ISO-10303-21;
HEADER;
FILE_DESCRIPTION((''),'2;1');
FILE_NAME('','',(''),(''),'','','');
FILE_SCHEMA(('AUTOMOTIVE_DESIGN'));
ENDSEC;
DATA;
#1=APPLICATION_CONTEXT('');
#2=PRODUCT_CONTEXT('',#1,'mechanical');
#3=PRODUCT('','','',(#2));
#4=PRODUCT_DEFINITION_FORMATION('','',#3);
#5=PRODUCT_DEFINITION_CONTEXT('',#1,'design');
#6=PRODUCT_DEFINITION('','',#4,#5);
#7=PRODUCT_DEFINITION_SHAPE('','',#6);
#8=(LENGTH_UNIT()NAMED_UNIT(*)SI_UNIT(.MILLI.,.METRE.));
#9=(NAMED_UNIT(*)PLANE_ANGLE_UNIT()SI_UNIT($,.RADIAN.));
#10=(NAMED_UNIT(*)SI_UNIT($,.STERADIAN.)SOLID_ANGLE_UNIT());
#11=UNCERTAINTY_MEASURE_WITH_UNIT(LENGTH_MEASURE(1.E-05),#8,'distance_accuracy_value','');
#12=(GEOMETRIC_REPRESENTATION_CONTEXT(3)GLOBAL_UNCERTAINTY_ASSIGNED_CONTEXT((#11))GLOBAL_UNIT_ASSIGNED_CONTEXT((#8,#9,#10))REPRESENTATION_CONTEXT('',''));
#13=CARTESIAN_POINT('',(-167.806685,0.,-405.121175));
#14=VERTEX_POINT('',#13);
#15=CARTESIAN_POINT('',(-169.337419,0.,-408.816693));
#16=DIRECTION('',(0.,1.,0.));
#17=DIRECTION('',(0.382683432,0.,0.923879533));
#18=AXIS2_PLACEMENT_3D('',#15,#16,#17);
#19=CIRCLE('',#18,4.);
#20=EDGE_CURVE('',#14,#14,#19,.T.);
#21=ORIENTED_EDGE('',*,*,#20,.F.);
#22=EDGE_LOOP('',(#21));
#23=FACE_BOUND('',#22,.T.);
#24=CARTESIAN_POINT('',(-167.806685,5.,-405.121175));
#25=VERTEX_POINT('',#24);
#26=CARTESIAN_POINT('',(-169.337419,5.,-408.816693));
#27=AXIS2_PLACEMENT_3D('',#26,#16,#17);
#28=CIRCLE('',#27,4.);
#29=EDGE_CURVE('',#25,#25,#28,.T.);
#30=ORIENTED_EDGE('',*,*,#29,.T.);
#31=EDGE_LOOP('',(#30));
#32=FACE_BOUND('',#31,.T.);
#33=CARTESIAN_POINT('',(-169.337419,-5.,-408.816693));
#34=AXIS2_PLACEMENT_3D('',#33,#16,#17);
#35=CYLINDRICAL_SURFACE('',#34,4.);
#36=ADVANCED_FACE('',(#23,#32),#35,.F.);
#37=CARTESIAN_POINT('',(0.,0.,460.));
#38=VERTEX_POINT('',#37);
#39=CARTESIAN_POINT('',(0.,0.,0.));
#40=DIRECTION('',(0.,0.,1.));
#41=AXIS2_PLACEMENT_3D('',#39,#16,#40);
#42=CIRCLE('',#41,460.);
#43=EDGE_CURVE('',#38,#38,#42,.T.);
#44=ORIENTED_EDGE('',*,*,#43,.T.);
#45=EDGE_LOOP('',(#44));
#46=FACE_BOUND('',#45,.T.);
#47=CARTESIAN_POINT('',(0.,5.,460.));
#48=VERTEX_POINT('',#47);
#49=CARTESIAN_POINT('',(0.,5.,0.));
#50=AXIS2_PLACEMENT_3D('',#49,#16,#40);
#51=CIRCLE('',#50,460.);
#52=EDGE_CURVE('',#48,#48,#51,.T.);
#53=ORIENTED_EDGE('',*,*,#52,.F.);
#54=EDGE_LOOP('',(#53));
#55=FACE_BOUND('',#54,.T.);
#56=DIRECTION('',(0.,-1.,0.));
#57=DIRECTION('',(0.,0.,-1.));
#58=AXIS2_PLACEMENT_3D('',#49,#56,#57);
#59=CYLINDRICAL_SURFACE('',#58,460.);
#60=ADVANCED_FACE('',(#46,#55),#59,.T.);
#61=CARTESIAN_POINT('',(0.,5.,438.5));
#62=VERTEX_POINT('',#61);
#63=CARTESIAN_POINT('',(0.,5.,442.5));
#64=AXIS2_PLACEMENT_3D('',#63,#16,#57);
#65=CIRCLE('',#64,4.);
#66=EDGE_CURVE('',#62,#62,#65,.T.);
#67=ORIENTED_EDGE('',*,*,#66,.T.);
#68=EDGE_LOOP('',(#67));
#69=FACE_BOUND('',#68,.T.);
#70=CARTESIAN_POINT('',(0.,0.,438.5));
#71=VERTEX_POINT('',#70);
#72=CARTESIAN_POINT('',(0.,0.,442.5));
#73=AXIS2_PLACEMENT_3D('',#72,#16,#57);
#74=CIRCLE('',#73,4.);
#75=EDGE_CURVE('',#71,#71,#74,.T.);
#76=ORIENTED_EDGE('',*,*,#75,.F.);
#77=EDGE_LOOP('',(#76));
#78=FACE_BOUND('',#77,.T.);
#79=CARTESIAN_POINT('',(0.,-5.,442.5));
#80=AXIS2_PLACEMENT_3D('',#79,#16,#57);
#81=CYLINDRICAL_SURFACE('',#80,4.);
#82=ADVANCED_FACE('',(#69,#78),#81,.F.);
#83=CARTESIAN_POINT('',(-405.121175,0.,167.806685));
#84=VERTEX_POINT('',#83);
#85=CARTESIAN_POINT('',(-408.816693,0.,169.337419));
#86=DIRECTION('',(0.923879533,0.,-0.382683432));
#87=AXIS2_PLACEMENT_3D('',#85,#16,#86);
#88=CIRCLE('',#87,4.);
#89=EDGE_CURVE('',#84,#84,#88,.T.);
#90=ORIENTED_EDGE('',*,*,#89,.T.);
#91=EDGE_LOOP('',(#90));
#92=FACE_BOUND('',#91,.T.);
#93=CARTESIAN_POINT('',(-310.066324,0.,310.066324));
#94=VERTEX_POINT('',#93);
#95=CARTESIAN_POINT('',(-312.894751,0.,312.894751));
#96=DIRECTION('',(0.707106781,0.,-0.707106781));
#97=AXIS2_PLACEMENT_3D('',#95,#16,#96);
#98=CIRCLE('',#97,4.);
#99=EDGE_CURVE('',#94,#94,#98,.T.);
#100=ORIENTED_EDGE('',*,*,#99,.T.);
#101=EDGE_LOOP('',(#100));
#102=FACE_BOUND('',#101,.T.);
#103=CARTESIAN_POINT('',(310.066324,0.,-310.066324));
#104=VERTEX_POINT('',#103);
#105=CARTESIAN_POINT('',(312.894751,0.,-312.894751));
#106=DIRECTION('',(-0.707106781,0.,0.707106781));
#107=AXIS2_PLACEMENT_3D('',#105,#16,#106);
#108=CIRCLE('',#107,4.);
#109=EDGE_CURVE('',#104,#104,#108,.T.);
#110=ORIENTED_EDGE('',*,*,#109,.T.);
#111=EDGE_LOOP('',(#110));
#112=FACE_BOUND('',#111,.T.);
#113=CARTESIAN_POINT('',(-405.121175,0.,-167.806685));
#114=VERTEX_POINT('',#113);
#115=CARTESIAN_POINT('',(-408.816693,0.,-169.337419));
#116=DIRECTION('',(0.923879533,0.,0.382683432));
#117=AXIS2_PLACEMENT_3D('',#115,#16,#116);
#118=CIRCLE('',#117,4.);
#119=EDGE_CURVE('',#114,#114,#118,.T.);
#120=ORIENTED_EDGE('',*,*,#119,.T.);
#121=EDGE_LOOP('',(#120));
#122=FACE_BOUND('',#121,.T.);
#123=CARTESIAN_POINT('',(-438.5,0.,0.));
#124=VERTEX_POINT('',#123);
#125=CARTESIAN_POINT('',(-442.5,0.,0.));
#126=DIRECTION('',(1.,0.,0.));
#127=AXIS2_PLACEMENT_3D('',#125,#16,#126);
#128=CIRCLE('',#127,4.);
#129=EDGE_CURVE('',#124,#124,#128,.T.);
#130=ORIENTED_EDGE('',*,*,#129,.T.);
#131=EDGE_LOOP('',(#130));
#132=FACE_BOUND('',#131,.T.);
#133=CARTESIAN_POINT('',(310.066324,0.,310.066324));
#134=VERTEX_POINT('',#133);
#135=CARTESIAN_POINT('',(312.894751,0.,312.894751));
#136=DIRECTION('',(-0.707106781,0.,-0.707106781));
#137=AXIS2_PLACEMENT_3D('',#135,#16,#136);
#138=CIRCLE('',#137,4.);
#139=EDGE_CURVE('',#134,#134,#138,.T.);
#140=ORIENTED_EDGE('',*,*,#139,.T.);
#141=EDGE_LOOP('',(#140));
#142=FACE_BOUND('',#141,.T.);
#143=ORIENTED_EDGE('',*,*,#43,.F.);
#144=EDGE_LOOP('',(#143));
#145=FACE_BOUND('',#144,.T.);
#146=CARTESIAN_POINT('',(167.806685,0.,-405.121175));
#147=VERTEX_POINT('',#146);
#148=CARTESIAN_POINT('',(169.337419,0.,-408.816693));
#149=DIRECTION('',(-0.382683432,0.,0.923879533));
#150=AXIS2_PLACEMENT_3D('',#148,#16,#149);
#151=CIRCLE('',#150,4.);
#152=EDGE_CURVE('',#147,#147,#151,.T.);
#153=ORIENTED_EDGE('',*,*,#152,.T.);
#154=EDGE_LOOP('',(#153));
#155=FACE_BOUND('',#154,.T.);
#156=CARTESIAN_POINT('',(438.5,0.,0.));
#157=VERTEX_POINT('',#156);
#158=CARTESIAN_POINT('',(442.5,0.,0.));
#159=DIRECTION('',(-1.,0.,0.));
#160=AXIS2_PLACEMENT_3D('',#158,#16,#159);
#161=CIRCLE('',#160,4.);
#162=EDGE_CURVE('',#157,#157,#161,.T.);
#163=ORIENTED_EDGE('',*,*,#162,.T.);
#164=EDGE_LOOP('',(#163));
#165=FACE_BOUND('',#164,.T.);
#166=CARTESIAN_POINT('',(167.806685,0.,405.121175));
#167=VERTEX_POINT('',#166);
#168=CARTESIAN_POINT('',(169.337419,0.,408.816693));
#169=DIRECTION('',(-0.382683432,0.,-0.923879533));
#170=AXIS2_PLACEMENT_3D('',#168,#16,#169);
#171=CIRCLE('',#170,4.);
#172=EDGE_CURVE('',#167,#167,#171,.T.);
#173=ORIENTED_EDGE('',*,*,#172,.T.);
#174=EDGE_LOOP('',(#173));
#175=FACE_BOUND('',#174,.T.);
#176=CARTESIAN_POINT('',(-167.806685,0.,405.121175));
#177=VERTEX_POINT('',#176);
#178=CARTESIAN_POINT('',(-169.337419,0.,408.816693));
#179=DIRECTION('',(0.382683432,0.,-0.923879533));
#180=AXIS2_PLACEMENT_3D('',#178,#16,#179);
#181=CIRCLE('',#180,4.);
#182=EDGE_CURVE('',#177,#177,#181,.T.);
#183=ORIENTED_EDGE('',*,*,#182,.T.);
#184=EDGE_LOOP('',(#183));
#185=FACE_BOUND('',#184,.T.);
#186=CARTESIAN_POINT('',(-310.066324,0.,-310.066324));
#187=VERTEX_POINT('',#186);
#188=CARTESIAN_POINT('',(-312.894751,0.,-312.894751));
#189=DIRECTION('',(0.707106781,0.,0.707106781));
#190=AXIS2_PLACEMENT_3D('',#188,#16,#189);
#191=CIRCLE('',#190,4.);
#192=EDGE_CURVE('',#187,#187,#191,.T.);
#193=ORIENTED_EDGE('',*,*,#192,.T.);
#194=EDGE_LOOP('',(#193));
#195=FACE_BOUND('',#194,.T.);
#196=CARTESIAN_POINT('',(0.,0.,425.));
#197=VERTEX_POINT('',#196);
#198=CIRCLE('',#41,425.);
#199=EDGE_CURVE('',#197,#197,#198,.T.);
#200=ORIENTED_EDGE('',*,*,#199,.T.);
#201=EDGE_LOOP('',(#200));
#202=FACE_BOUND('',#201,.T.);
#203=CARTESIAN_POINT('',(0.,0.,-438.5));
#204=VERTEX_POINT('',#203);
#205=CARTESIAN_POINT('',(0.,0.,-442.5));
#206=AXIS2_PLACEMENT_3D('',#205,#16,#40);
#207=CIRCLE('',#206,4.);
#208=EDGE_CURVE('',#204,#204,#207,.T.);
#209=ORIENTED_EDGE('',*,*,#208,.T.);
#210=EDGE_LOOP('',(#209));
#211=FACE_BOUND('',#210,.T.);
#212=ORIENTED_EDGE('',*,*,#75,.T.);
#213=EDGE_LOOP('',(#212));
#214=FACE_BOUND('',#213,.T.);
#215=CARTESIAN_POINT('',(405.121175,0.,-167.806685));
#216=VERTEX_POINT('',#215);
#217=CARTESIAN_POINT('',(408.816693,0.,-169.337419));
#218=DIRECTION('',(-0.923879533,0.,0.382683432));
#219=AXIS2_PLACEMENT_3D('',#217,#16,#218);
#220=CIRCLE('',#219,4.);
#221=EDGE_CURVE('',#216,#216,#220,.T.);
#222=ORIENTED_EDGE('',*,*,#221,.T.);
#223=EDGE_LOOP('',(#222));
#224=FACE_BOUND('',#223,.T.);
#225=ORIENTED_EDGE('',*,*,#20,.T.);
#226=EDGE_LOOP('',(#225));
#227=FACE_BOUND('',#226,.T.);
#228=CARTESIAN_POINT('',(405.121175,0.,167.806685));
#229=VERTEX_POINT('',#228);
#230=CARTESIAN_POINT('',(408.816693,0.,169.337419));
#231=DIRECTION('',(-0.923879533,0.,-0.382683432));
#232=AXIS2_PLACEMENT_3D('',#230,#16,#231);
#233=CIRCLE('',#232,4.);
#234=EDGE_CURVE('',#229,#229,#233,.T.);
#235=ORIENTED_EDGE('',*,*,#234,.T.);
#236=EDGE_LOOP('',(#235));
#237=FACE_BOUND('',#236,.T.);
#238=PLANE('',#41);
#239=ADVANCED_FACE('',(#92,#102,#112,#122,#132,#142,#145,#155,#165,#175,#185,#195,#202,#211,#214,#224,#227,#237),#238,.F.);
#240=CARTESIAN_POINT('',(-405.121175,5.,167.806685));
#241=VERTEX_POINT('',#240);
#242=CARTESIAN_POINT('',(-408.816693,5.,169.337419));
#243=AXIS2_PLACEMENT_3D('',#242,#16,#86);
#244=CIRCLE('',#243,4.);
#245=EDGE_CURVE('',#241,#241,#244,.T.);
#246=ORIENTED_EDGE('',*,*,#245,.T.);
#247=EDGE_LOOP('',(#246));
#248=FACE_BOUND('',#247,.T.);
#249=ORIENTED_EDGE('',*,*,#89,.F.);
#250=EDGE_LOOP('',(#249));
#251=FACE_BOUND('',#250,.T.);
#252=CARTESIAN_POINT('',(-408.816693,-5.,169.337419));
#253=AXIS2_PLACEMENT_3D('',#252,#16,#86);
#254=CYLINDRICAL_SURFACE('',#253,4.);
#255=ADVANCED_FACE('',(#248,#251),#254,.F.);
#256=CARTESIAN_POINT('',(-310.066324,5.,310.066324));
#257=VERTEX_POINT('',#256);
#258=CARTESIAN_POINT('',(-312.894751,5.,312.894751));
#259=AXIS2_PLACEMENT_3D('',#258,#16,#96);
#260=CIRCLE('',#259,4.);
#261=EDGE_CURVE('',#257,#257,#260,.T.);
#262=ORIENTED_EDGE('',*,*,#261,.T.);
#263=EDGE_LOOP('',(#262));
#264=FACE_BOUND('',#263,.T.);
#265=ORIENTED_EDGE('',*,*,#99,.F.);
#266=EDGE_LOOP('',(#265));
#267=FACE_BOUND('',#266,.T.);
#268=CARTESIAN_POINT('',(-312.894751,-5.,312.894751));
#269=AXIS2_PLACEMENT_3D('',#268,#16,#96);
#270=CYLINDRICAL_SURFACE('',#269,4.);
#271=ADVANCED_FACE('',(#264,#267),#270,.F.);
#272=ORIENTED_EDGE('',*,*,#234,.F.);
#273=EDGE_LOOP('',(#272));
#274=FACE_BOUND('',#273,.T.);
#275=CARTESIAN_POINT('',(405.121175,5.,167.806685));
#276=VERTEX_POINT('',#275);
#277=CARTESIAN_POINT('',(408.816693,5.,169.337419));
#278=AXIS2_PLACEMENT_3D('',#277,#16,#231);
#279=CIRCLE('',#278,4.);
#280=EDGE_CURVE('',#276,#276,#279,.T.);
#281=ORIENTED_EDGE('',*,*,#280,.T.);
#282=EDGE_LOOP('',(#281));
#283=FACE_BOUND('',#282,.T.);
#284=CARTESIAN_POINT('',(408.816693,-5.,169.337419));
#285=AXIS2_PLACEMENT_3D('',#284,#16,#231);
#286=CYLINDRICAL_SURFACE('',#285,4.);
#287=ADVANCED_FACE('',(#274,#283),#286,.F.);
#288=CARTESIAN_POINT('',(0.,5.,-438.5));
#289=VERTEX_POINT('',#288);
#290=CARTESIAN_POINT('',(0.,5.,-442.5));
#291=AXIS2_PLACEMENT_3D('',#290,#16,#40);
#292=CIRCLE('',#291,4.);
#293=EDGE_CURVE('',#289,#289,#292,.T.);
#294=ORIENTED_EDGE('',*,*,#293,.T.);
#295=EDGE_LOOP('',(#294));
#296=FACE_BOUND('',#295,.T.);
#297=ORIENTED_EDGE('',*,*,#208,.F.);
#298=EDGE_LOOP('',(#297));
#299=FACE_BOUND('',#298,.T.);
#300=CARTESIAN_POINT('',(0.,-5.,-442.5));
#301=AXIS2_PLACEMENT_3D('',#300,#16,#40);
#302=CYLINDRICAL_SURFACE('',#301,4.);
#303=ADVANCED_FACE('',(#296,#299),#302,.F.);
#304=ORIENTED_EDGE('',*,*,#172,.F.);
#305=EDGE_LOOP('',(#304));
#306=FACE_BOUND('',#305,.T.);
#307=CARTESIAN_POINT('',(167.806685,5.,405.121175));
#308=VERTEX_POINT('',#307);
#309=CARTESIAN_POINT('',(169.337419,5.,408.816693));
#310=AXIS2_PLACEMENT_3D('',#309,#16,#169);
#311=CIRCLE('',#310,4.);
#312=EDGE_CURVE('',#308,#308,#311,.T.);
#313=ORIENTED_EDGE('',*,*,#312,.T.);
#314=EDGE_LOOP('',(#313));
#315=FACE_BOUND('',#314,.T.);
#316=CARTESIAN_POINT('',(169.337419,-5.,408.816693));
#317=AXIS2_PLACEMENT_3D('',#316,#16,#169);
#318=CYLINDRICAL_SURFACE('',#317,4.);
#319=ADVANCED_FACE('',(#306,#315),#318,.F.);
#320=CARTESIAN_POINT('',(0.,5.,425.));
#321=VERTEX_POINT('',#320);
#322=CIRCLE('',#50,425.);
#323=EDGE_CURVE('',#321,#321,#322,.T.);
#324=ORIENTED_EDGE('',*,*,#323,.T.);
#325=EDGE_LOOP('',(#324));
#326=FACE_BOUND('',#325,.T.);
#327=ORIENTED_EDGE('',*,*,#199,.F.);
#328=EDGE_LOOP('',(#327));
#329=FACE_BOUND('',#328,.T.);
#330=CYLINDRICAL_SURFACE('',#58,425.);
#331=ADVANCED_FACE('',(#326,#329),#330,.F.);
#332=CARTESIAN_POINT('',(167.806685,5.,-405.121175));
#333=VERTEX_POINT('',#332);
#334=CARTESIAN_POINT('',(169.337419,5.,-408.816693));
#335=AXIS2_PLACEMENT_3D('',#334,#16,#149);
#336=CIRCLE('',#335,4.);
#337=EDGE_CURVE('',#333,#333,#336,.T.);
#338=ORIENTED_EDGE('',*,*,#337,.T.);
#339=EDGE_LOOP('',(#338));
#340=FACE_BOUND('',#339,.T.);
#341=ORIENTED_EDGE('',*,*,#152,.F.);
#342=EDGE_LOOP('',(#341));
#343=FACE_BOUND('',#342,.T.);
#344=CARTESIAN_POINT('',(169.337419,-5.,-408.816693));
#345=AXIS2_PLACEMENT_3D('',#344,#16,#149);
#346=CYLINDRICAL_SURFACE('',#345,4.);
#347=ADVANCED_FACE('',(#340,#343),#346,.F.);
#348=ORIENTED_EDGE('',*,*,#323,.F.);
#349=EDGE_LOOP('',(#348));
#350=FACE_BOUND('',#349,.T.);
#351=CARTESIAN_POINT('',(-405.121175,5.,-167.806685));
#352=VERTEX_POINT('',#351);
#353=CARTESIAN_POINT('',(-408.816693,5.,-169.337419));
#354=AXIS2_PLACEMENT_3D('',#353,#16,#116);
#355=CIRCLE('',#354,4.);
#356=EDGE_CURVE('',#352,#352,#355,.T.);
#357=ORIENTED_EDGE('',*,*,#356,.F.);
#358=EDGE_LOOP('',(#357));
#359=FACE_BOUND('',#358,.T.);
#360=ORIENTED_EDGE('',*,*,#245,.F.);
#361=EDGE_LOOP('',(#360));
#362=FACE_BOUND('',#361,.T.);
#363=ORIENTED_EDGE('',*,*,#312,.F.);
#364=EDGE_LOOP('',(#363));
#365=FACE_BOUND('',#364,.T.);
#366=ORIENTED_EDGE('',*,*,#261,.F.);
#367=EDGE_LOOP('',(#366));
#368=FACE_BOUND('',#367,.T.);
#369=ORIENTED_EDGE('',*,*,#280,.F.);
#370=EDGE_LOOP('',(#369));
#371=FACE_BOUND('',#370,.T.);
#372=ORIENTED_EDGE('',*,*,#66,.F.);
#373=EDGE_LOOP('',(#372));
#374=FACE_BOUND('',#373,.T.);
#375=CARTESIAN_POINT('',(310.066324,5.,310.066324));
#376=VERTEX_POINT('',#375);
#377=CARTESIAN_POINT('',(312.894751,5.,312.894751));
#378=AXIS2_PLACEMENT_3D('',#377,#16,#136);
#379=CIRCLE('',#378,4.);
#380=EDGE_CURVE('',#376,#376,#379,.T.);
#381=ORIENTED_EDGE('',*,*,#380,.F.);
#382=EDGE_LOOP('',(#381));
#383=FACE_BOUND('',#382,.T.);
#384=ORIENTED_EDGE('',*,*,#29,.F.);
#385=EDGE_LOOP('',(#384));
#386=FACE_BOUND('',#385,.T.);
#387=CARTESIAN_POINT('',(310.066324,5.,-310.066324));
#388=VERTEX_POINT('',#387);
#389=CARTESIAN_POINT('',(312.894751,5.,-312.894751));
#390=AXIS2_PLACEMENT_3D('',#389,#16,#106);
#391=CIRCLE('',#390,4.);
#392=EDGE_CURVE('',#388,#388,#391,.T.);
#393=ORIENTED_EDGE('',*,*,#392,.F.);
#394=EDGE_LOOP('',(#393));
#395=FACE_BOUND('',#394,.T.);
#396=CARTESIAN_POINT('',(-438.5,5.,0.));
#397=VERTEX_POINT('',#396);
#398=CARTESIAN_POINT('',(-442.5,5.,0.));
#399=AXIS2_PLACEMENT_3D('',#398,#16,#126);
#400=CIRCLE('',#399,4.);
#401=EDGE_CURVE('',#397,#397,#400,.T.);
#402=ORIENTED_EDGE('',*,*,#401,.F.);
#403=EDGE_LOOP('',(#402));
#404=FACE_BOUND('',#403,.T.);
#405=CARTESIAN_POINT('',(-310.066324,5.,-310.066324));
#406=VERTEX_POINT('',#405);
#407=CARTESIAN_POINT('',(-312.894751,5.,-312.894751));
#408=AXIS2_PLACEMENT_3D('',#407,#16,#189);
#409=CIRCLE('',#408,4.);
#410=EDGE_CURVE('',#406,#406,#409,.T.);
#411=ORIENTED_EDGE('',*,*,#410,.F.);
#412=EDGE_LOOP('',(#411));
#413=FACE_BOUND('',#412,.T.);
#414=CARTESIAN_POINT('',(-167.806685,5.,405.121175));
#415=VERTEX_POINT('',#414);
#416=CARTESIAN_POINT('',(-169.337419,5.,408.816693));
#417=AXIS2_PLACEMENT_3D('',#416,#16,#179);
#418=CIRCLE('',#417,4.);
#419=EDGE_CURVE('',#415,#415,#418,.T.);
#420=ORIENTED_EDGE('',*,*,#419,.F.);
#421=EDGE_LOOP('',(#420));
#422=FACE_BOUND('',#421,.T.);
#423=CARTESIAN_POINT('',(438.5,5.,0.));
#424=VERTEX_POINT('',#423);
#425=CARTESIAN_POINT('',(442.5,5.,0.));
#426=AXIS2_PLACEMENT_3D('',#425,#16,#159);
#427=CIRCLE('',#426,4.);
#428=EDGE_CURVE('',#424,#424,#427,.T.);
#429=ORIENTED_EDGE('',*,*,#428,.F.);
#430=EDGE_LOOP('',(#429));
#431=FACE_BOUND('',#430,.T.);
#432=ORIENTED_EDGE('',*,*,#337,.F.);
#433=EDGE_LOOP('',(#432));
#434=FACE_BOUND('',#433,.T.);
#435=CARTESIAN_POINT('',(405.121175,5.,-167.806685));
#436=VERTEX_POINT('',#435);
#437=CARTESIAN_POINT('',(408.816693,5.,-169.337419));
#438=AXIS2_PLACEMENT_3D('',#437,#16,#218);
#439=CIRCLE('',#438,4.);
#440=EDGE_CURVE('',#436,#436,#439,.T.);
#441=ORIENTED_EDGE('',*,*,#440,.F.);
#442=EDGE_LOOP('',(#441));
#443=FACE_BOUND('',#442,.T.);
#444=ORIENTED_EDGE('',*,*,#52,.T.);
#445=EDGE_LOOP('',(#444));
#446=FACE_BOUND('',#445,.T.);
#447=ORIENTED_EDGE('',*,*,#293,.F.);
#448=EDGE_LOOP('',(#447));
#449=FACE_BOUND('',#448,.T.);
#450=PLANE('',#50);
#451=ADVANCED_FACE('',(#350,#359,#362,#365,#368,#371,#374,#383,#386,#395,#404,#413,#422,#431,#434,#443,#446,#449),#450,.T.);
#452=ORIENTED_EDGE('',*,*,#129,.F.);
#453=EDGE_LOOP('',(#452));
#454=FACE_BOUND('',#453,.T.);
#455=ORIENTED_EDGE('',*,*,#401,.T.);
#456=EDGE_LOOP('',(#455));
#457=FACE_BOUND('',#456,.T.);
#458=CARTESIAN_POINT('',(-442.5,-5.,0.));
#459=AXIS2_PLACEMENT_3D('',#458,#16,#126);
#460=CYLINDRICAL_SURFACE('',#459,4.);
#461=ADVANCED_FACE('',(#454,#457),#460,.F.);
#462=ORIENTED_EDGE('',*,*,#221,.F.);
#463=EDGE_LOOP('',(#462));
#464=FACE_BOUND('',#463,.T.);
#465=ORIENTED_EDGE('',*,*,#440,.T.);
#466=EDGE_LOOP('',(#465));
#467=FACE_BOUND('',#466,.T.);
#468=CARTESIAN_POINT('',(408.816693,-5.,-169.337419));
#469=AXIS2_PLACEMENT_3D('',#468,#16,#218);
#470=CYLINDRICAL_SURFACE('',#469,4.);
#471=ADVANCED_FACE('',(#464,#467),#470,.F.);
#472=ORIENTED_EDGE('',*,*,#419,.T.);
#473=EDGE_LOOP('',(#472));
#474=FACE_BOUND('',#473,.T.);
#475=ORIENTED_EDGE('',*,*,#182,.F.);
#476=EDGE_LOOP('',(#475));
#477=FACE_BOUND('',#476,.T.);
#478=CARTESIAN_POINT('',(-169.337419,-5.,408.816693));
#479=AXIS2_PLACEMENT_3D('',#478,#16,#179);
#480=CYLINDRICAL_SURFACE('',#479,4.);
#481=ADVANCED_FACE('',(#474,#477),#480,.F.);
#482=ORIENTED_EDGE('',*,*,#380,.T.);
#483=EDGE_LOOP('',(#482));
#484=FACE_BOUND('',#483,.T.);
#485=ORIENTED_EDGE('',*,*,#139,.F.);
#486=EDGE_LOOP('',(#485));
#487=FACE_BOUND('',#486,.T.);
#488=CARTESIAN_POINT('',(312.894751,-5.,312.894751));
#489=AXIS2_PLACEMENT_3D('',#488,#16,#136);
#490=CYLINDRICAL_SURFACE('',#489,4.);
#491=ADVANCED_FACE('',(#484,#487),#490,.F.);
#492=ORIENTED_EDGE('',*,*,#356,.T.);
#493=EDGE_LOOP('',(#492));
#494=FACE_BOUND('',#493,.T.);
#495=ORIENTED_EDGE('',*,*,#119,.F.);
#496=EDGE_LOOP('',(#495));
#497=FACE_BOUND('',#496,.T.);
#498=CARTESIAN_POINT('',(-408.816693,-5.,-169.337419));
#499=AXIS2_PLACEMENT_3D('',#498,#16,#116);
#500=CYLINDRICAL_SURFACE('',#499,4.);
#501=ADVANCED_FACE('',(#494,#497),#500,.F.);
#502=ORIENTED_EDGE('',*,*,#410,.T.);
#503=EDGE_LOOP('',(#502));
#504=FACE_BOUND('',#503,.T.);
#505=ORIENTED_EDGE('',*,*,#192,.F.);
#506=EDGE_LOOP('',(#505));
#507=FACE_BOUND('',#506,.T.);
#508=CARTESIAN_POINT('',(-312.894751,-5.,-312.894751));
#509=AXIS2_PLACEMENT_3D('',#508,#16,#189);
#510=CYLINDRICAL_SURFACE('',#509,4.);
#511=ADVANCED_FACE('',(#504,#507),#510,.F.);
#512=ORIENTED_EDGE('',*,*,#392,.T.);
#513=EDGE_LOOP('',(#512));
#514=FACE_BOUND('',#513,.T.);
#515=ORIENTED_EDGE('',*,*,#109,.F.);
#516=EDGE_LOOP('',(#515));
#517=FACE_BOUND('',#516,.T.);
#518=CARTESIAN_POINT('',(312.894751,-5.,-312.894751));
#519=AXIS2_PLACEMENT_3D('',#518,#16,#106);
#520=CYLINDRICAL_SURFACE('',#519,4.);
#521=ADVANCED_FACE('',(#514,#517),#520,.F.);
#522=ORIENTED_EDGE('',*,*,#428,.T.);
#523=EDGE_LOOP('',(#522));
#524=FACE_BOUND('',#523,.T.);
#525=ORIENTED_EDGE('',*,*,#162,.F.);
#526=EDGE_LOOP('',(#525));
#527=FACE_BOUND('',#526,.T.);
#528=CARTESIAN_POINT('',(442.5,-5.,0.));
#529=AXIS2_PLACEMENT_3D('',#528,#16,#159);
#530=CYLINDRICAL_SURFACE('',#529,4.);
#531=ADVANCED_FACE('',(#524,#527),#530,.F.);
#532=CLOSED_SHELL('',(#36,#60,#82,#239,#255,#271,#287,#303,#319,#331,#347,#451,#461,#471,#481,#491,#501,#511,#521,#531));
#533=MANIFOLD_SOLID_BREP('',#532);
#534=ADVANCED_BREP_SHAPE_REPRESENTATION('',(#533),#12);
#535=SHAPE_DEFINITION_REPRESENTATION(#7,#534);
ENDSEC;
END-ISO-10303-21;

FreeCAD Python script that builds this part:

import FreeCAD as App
import Part
import Sketcher
from FreeCAD import Vector
Q = App.Units.Quantity

doc = App.newDocument("Part")
body = doc.addObject("PartDesign::Body", "Body")

# Sketch on XZ plane
sketch1 = doc.addObject("Sketcher::SketchObject", "Sketch")
body.addObject(sketch1)
sketch1.AttachmentSupport = (doc.XZ_Plane, [""])
sketch1.MapMode = "FlatFace"
sketch1.addGeometry([
    Part.Circle(Vector(0, 0, 0), Vector(0, 0, 1), 460),
    Part.Circle(Vector(0, 0, 0), Vector(0, 0, 1), 425),
], False)
sketch1.addConstraint([
    Sketcher.Constraint("Coincident", 0, 3, -1, 1),
    Sketcher.Constraint("Coincident", 1, 3, -1, 1),
    Sketcher.Constraint("Diameter", 0, Q("920 mm")),
    Sketcher.Constraint("Diameter", 1, Q("850 mm")),
])
pad1 = doc.addObject("PartDesign::Pad", "Pad")
body.addObject(pad1)
pad1.Profile = sketch1
pad1.Length = 5
pad1.Reversed = True

# Sketch on XZ plane
sketch2 = doc.addObject("Sketcher::SketchObject", "Sketch001")
body.addObject(sketch2)
sketch2.AttachmentSupport = (doc.XZ_Plane, [""])
sketch2.MapMode = "FlatFace"
sketch2.AttachmentOffset = App.Placement(Vector(0, 0, -5), App.Rotation())
sketch2.addGeometry(Part.Circle(Vector(0, -442.5, 0), Vector(0, 0, 1), 4), False)
sketch2.addConstraint([
    Sketcher.Constraint("PointOnObject", 0, 3, -2),
    Sketcher.Constraint("Diameter", 0, Q("8 mm")),
    Sketcher.Constraint("DistanceY", 0, 3, -1, 1, Q("442.5 mm")),
])
pocket1 = doc.addObject("PartDesign::Pocket", "Pocket")
body.addObject(pocket1)
pocket1.Profile = sketch2
pocket1.Length = 10
pocket1.Reversed = True
doc.recompute()

polarpattern = doc.addObject("PartDesign::PolarPattern", "PolarPattern")
body.addObject(polarpattern)
polarpattern.Originals = [pocket1]
polarpattern.Axis = (doc.Y_Axis, [""])
polarpattern.Angle = 360
polarpattern.Occurrences = 16
body.Tip = polarpattern

doc.recompute()
